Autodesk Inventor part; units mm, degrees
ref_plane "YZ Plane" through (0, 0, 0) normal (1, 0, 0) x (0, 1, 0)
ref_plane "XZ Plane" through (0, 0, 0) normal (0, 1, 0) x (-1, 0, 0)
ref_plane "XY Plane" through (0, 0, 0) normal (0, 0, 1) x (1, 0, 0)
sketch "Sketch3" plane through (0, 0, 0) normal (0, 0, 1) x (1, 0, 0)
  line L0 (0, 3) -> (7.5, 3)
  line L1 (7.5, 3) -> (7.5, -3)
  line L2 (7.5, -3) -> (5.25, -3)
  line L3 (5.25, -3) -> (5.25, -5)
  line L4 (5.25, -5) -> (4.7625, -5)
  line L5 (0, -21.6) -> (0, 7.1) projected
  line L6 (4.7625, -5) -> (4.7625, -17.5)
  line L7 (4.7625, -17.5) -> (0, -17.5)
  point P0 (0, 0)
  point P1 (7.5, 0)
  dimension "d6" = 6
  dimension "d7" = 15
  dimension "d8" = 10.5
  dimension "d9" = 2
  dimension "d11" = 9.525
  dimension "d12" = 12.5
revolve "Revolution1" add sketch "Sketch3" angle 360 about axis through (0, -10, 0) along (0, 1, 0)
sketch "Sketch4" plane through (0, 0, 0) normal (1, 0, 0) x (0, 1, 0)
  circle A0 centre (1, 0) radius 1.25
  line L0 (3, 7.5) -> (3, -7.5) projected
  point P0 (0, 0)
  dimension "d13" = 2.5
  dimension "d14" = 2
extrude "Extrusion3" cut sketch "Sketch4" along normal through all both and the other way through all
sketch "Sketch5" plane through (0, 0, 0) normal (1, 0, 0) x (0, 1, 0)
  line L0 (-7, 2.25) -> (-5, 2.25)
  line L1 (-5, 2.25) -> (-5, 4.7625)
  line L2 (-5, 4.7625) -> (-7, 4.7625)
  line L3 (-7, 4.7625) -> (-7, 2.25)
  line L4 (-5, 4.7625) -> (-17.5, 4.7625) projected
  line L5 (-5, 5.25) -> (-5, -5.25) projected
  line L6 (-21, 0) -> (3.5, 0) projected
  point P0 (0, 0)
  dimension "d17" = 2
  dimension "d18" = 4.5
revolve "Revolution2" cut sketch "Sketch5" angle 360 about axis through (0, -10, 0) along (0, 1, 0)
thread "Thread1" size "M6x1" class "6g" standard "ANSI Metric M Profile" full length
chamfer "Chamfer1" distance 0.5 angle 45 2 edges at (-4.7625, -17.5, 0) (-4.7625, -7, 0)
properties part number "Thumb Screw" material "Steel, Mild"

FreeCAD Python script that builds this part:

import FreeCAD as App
import Part
import Sketcher


def edges_at(feature, points):
    """Names of the edges that pass closest to the given points."""
    edges = feature.Shape.Edges
    near = lambda p: min(range(len(edges)), key=lambda i: edges[i].distToShape(Part.Vertex(*p))[0])
    return sorted({f"Edge{near(p) + 1}" for p in points})

doc = App.newDocument("Part")
params = doc.addObject("Spreadsheet::Sheet", "Params")
for row, (alias, value) in enumerate([
    ("sketch1_height", "2 mm"),
    ("sketch1_height2", "6 mm"),
    ("sketch1_height3", "12.5 mm"),
    ("sketch1_width", "7.5 mm"),
    ("sketch1_width2", "2.25 mm"),
    ("revolution_angle", "360 deg"),
    ("sketch2_diameter", "2.5 mm"),
    ("sketch3_width", "2 mm"),
    ("groove_angle", "360 deg"),
    ("chamfer_size", "0.5 mm"),
], start=1):
    params.set(f"A{row}", alias)
    params.set(f"B{row}", "=" + value)
    params.setAlias(f"B{row}", alias)

body = doc.addObject("PartDesign::Body", "Body")

# Sketch on XY plane
sketch1 = doc.addObject("Sketcher::SketchObject", "Sketch")
body.addObject(sketch1)
sketch1.AttachmentSupport = (doc.XY_Plane, [""])
sketch1.MapMode = "FlatFace"
sketch1.addGeometry(Part.LineSegment(App.Vector(7.5, 3, 0), App.Vector(0, 3, 0)), False)
sketch1.addGeometry(Part.LineSegment(App.Vector(0, 3, 0), App.Vector(0, -17.5, 0)), False)
sketch1.addGeometry(Part.LineSegment(App.Vector(0, -17.5, 0), App.Vector(4.7625, -17.5, 0)), False)
sketch1.addGeometry(Part.LineSegment(App.Vector(4.7625, -17.5, 0), App.Vector(4.7625, -5, 0)), False)
sketch1.addGeometry(Part.LineSegment(App.Vector(4.7625, -5, 0), App.Vector(5.25, -5, 0)), False)
sketch1.addGeometry(Part.LineSegment(App.Vector(5.25, -5, 0), App.Vector(5.25, -3, 0)), False)
sketch1.addGeometry(Part.LineSegment(App.Vector(5.25, -3, 0), App.Vector(7.5, -3, 0)), False)
sketch1.addGeometry(Part.LineSegment(App.Vector(7.5, -3, 0), App.Vector(7.5, 3, 0)), False)
sketch1.addConstraint(Sketcher.Constraint("Coincident", 0, 2, 1, 1))
sketch1.addConstraint(Sketcher.Constraint("Coincident", 1, 2, 2, 1))
sketch1.addConstraint(Sketcher.Constraint("Coincident", 2, 2, 3, 1))
sketch1.addConstraint(Sketcher.Constraint("Coincident", 3, 2, 4, 1))
sketch1.addConstraint(Sketcher.Constraint("Coincident", 4, 2, 5, 1))
sketch1.addConstraint(Sketcher.Constraint("Coincident", 5, 2, 6, 1))
sketch1.addConstraint(Sketcher.Constraint("Coincident", 6, 2, 7, 1))
sketch1.addConstraint(Sketcher.Constraint("Coincident", 7, 2, 0, 1))
sketch1.addConstraint(Sketcher.Constraint("Horizontal", 0))
sketch1.addConstraint(Sketcher.Constraint("Vertical", 1))
sketch1.addConstraint(Sketcher.Constraint("Horizontal", 2))
sketch1.addConstraint(Sketcher.Constraint("Vertical", 3))
sketch1.addConstraint(Sketcher.Constraint("Horizontal", 4))
sketch1.addConstraint(Sketcher.Constraint("Vertical", 5))
sketch1.addConstraint(Sketcher.Constraint("Horizontal", 6))
sketch1.addConstraint(Sketcher.Constraint("Vertical", 7))
sketch1.addConstraint(Sketcher.Constraint("PointOnObject", 0, 2, -2))
sketch1.addConstraint(Sketcher.Constraint("DistanceY", 5, 1, 5, 2, 2.0))
sketch1.addConstraint(Sketcher.Constraint("DistanceY", 7, 1, 7, 2, 6.0))
sketch1.addConstraint(Sketcher.Constraint("DistanceY", 3, 1, 3, 2, 12.5))
sketch1.addConstraint(Sketcher.Constraint("DistanceX", 0, 2, 0, 1, 7.5))
sketch1.addConstraint(Sketcher.Constraint("DistanceY", -1, 1, 0, 2, 3.0))
sketch1.addConstraint(Sketcher.Constraint("DistanceX", 6, 1, 6, 2, 2.25))
sketch1.addConstraint(Sketcher.Constraint("DistanceX", 2, 1, 2, 2, 4.7625))
sketch1.setExpression("Constraints[17]", "Params.sketch1_height")
sketch1.setExpression("Constraints[18]", "Params.sketch1_height2")
sketch1.setExpression("Constraints[19]", "Params.sketch1_height3")
sketch1.setExpression("Constraints[20]", "Params.sketch1_width")
sketch1.setExpression("Constraints[22]", "Params.sketch1_width2")
revolution = doc.addObject("PartDesign::Revolution", "Revolution")
body.addObject(revolution)
revolution.Profile = sketch1
revolution.ReferenceAxis = (sketch1, ["V_Axis"])
revolution.setExpression("Angle", "Params.revolution_angle")

# Sketch on YZ plane
sketch2 = doc.addObject("Sketcher::SketchObject", "Sketch001")
body.addObject(sketch2)
sketch2.AttachmentSupport = (doc.YZ_Plane, [""])
sketch2.MapMode = "FlatFace"
sketch2.addGeometry(Part.Circle(App.Vector(1, 0, 0), App.Vector(0, 0, 1), 1.25), False)
sketch2.addConstraint(Sketcher.Constraint("PointOnObject", 0, 3, -1))
sketch2.addConstraint(Sketcher.Constraint("Diameter", 0, 2.5))
sketch2.addConstraint(Sketcher.Constraint("DistanceX", -1, 1, 0, 3, 1.0))
sketch2.setExpression("Constraints[1]", "Params.sketch2_diameter")
pocket1 = doc.addObject("PartDesign::Pocket", "Pocket")
body.addObject(pocket1)
pocket1.Profile = sketch2
pocket1.Type = "ThroughAll"
pocket1.Midplane = True

# Sketch on YZ plane
sketch3 = doc.addObject("Sketcher::SketchObject", "Sketch002")
body.addObject(sketch3)
sketch3.AttachmentSupport = (doc.YZ_Plane, [""])
sketch3.MapMode = "FlatFace"
sketch3.addGeometry(Part.LineSegment(App.Vector(-7, 4.7625, 0), App.Vector(-7, 2.25, 0)), False)
sketch3.addGeometry(Part.LineSegment(App.Vector(-7, 2.25, 0), App.Vector(-5, 2.25, 0)), False)
sketch3.addGeometry(Part.LineSegment(App.Vector(-5, 2.25, 0), App.Vector(-5, 4.7625, 0)), False)
sketch3.addGeometry(Part.LineSegment(App.Vector(-5, 4.7625, 0), App.Vector(-7, 4.7625, 0)), False)
sketch3.addConstraint(Sketcher.Constraint("Coincident", 0, 2, 1, 1))
sketch3.addConstraint(Sketcher.Constraint("Coincident", 1, 2, 2, 1))
sketch3.addConstraint(Sketcher.Constraint("Coincident", 2, 2, 3, 1))
sketch3.addConstraint(Sketcher.Constraint("Coincident", 3, 2, 0, 1))
sketch3.addConstraint(Sketcher.Constraint("Vertical", 0))
sketch3.addConstraint(Sketcher.Constraint("Horizontal", 1))
sketch3.addConstraint(Sketcher.Constraint("Vertical", 2))
sketch3.addConstraint(Sketcher.Constraint("Horizontal", 3))
sketch3.addConstraint(Sketcher.Constraint("DistanceX", 1, 1, 1, 2, 2.0))
sketch3.addConstraint(Sketcher.Constraint("DistanceX", 0, 2, -1, 1, 7.0))
sketch3.addConstraint(Sketcher.Constraint("DistanceY", -1, 1, 0, 2, 2.25))
sketch3.addConstraint(Sketcher.Constraint("DistanceY", 0, 2, 0, 1, 2.5125))
sketch3.setExpression("Constraints[8]", "Params.sketch3_width")
groove = doc.addObject("PartDesign::Groove", "Groove")
body.addObject(groove)
groove.Profile = sketch3
groove.ReferenceAxis = (sketch3, ["H_Axis"])
groove.setExpression("Angle", "Params.groove_angle")
doc.recompute()

chamfer = doc.addObject("PartDesign::Chamfer", "Chamfer")
body.addObject(chamfer)
chamfer.Base = (groove, edges_at(groove, [(-4.763, -17.5, 0), (-4.763, -7, 0)]))
chamfer.setExpression("Size", "Params.chamfer_size")

doc.recompute()
